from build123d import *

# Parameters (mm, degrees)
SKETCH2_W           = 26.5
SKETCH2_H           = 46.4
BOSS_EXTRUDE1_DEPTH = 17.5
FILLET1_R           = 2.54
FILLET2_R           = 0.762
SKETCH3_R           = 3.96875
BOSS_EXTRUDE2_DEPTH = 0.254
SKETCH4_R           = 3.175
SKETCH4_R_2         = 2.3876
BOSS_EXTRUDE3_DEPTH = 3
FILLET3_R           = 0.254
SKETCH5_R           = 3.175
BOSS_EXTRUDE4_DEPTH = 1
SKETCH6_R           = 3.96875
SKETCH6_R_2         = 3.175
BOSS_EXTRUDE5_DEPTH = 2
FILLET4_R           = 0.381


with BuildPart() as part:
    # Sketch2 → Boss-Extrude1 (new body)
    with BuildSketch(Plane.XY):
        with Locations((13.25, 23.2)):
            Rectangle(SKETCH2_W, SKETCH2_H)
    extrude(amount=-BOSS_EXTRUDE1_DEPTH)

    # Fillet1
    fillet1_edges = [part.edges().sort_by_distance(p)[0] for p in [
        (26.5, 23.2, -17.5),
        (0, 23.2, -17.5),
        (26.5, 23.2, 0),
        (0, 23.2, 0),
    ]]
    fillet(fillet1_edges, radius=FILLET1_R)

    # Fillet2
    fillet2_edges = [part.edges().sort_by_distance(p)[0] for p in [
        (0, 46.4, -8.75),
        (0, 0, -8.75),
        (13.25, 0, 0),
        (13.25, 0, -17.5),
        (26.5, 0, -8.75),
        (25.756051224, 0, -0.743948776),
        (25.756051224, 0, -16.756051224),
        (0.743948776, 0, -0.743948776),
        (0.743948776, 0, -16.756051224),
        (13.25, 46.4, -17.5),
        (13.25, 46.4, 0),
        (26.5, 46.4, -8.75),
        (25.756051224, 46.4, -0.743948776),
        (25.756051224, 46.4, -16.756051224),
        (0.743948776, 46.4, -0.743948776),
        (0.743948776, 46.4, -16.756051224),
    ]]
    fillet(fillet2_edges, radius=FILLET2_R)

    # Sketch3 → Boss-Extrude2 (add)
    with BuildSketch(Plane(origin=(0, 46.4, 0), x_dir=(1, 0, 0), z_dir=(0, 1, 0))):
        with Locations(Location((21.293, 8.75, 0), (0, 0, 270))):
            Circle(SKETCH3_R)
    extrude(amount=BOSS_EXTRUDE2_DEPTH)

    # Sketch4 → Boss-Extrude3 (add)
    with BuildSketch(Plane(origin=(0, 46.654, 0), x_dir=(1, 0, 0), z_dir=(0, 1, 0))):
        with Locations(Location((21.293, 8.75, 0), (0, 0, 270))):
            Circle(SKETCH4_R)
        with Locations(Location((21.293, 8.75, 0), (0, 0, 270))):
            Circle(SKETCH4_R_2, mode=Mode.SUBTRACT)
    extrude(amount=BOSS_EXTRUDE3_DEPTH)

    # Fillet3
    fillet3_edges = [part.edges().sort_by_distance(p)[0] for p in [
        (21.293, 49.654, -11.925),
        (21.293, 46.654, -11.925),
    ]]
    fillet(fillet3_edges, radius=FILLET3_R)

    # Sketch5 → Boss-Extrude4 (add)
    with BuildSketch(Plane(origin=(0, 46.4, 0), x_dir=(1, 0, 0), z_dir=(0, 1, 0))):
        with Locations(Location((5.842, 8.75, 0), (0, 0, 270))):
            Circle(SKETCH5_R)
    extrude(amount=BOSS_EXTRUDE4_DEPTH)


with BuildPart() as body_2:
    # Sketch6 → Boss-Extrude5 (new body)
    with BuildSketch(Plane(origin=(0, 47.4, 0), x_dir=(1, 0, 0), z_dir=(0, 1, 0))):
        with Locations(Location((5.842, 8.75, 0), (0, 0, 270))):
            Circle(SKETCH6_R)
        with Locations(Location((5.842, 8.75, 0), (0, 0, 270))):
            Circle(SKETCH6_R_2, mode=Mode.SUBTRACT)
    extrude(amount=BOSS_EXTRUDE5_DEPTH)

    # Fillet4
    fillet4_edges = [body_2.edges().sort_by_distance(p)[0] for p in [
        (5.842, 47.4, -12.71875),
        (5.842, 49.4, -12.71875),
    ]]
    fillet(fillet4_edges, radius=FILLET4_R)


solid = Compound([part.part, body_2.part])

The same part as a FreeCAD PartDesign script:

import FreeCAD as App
import Part
import Sketcher

V = App.Vector
Q = App.Units.Quantity


def edges_at(feature, points):
    """Names of the edges that pass closest to the given points."""
    edges = feature.Shape.Edges
    near = lambda p: min(range(len(edges)), key=lambda i: edges[i].distToShape(Part.Vertex(*p))[0])
    return sorted({f"Edge{near(p) + 1}" for p in points})

doc = App.newDocument("Part")
body = doc.addObject("PartDesign::Body", "Body")

# Sketch on XY plane
sketch1 = doc.addObject("Sketcher::SketchObject", "Sketch")
body.addObject(sketch1)
sketch1.AttachmentSupport = (doc.XY_Plane, [""])
sketch1.MapMode = "FlatFace"
sketch1.addGeometry([
    Part.LineSegment(V(0, 46.4, 0), V(0, 0, 0)),
    Part.LineSegment(V(0, 0, 0), V(26.5, 0, 0)),
    Part.LineSegment(V(26.5, 0, 0), V(26.5, 46.4, 0)),
    Part.LineSegment(V(26.5, 46.4, 0), V(0, 46.4, 0)),
], False)
sketch1.addConstraint([
    Sketcher.Constraint("Coincident", 0, 2, 1, 1),
    Sketcher.Constraint("Coincident", 1, 2, 2, 1),
    Sketcher.Constraint("Coincident", 2, 2, 3, 1),
    Sketcher.Constraint("Coincident", 3, 2, 0, 1),
    Sketcher.Constraint("Vertical", 0),
    Sketcher.Constraint("Horizontal", 1),
    Sketcher.Constraint("Vertical", 2),
    Sketcher.Constraint("Horizontal", 3),
    Sketcher.Constraint("Coincident", 0, 2, -1, 1),
    Sketcher.Constraint("DistanceX", 1, 1, 1, 2, 26.5),
    Sketcher.Constraint("DistanceY", 0, 2, 0, 1, 46.4),
])
pad1 = doc.addObject("PartDesign::Pad", "Pad")
body.addObject(pad1)
pad1.Profile = sketch1
pad1.Length = 17.5
pad1.Reversed = True
doc.recompute()

fillet = doc.addObject("PartDesign::Fillet", "Fillet")
body.addObject(fillet)
fillet.Base = (pad1, edges_at(pad1, [
    (26.5, 23.2, -17.5),
    (0, 23.2, -17.5),
    (26.5, 23.2, 0),
    (0, 23.2, 0),
]))
fillet.Radius = Q("0.1 in")
doc.recompute()

fillet2 = doc.addObject("PartDesign::Fillet", "Fillet001")
body.addObject(fillet2)
fillet2.Base = (fillet, edges_at(fillet, [
    (0, 46.4, -8.75),
    (0, 0, -8.75),
    (13.25, 0, 0),
    (13.25, 0, -17.5),
    (26.5, 0, -8.75),
    (25.756, 0, -0.744),
    (25.756, 0, -16.756),
    (0.744, 0, -0.744),
    (0.744, 0, -16.756),
    (13.25, 46.4, -17.5),
    (13.25, 46.4, 0),
    (26.5, 46.4, -8.75),
    (25.756, 46.4, -0.744),
    (25.756, 46.4, -16.756),
    (0.744, 46.4, -0.744),
    (0.744, 46.4, -16.756),
]))
fillet2.Radius = Q("0.03 in")

# Sketch on XZ plane
sketch2 = doc.addObject("Sketcher::SketchObject", "Sketch001")
body.addObject(sketch2)
sketch2.AttachmentSupport = (doc.XZ_Plane, [""])
sketch2.MapMode = "FlatFace"
sketch2.AttachmentOffset = App.Placement(V(0, 0, -46.4), App.Rotation())
sketch2.addGeometry(Part.Circle(V(21.293, -8.75, 0), V(0, 0, 1), 3.96875), False)
sketch2.addConstraint([
    Sketcher.Constraint("Diameter", 0, Q("0.3125 in")),
    Sketcher.Constraint("DistanceX", -1, 1, 0, 3, 21.293),
    Sketcher.Constraint("DistanceY", 0, 3, -1, 1, 8.75),
])
pad2 = doc.addObject("PartDesign::Pad", "Pad001")
body.addObject(pad2)
pad2.Profile = sketch2
pad2.Length = Q("0.01 in")
pad2.Reversed = True

# Sketch on XZ plane
sketch3 = doc.addObject("Sketcher::SketchObject", "Sketch002")
body.addObject(sketch3)
sketch3.AttachmentSupport = (doc.XZ_Plane, [""])
sketch3.MapMode = "FlatFace"
sketch3.AttachmentOffset = App.Placement(V(0, 0, -46.654), App.Rotation())
sketch3.addGeometry([
    Part.Circle(V(21.293, -8.75, 0), V(0, 0, 1), 3.175),
    Part.Circle(V(21.293, -8.75, 0), V(0, 0, 1), 2.3876),
], False)
sketch3.addConstraint([
    Sketcher.Constraint("Coincident", 1, 3, 0, 3),
    Sketcher.Constraint("Diameter", 0, Q("0.25 in")),
    Sketcher.Constraint("Diameter", 1, Q("0.188 in")),
    Sketcher.Constraint("DistanceX", -1, 1, 0, 3, 21.293),
    Sketcher.Constraint("DistanceY", 0, 3, -1, 1, 8.75),
])
pad3 = doc.addObject("PartDesign::Pad", "Pad002")
body.addObject(pad3)
pad3.Profile = sketch3
pad3.Length = 3
pad3.Reversed = True
doc.recompute()

fillet3 = doc.addObject("PartDesign::Fillet", "Fillet002")
body.addObject(fillet3)
fillet3.Base = (pad3, edges_at(pad3, [(21.293, 49.654, -11.925), (21.293, 46.654, -11.925)]))
fillet3.Radius = Q("0.01 in")

# Sketch on XZ plane
sketch4 = doc.addObject("Sketcher::SketchObject", "Sketch003")
body.addObject(sketch4)
sketch4.AttachmentSupport = (doc.XZ_Plane, [""])
sketch4.MapMode = "FlatFace"
sketch4.AttachmentOffset = App.Placement(V(0, 0, -46.4), App.Rotation())
sketch4.addGeometry(Part.Circle(V(5.842, -8.75, 0), V(0, 0, 1), 3.175), False)
sketch4.addConstraint([
    Sketcher.Constraint("Diameter", 0, Q("0.25 in")),
    Sketcher.Constraint("DistanceX", -1, 1, 0, 3, Q("0.23 in")),
    Sketcher.Constraint("DistanceY", 0, 3, -1, 1, 8.75),
])
pad4 = doc.addObject("PartDesign::Pad", "Pad003")
body.addObject(pad4)
pad4.Profile = sketch4
pad4.Length = 1
pad4.Reversed = True
body2 = doc.addObject("PartDesign::Body", "Body001")

# Sketch on XZ plane
sketch5 = doc.addObject("Sketcher::SketchObject", "Sketch004")
body2.addObject(sketch5)
sketch5.AttachmentSupport = (doc.getObject("XZ_Plane001"), [""])
sketch5.MapMode = "FlatFace"
sketch5.AttachmentOffset = App.Placement(V(0, 0, -47.4), App.Rotation())
sketch5.addGeometry([
    Part.Circle(V(5.842, -8.75, 0), V(0, 0, 1), 3.96875),
    Part.Circle(V(5.842, -8.75, 0), V(0, 0, 1), 3.175),
], False)
sketch5.addConstraint([
    Sketcher.Constraint("Coincident", 1, 3, 0, 3),
    Sketcher.Constraint("Diameter", 1, Q("0.25 in")),
    Sketcher.Constraint("Diameter", 0, Q("0.3125 in")),
    Sketcher.Constraint("DistanceX", -1, 1, 0, 3, Q("0.23 in")),
    Sketcher.Constraint("DistanceY", 0, 3, -1, 1, 8.75),
])
pad5 = doc.addObject("PartDesign::Pad", "Pad004")
body2.addObject(pad5)
pad5.Profile = sketch5
pad5.Length = 2
pad5.Reversed = True
doc.recompute()

fillet4 = doc.addObject("PartDesign::Fillet", "Fillet003")
body2.addObject(fillet4)
fillet4.Base = (pad5, edges_at(pad5, [(5.842, 47.4, -12.719), (5.842, 49.4, -12.719)]))
fillet4.Radius = Q("0.015 in")

doc.recompute()
